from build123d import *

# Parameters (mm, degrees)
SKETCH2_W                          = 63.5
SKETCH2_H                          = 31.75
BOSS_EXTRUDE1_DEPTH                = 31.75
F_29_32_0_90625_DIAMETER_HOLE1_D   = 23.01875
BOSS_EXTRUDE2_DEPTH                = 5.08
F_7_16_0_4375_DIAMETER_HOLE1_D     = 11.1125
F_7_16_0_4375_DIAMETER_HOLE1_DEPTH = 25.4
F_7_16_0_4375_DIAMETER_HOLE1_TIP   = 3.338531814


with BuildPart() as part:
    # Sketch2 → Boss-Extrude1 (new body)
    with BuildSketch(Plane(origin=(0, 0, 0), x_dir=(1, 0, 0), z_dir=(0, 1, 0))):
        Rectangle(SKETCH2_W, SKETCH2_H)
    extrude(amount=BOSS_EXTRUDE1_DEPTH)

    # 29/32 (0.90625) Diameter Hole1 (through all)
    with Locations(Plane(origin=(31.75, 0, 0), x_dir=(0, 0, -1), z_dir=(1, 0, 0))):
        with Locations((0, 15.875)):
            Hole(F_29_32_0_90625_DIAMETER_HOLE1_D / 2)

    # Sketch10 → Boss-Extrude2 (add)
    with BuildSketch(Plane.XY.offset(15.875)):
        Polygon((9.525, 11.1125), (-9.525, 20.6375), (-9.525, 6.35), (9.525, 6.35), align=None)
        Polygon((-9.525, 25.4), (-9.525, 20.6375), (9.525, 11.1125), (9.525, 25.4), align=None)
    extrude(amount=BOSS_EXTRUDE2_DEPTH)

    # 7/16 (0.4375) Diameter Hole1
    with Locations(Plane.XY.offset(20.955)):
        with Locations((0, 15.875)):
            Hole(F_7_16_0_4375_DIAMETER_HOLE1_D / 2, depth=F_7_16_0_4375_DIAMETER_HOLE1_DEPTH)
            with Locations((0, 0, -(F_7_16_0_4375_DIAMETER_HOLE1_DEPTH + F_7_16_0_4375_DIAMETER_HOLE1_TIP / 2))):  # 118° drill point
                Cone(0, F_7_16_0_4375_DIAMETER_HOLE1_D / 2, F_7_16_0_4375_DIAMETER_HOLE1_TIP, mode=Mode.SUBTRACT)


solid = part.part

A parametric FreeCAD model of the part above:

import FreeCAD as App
import Part
import Sketcher
from FreeCAD import Vector
Q = App.Units.Quantity

doc = App.newDocument("Part")
body = doc.addObject("PartDesign::Body", "Body")

sketch1 = body.newObject("Sketcher::SketchObject", "Sketch")
sketch1.AttachmentSupport = (doc.getObject("XZ_Plane"), [""])
sketch1.MapMode = "FlatFace"
sketch1.addGeometry([
    Part.LineSegment(Vector(-32, -16, 0), Vector(-32, 16, 0)),
    Part.LineSegment(Vector(-32, 16, 0), Vector(32, 16, 0)),
    Part.LineSegment(Vector(32, 16, 0), Vector(32, -16, 0)),
    Part.LineSegment(Vector(32, -16, 0), Vector(-32, -16, 0)),
], False)
sketch1.addConstraint([
    Sketcher.Constraint("Coincident", 0, 2, 1, 1),
    Sketcher.Constraint("Coincident", 1, 2, 2, 1),
    Sketcher.Constraint("Coincident", 2, 2, 3, 1),
    Sketcher.Constraint("Coincident", 3, 2, 0, 1),
    Sketcher.Constraint("Vertical", 0),
    Sketcher.Constraint("Horizontal", 1),
    Sketcher.Constraint("Vertical", 2),
    Sketcher.Constraint("Horizontal", 3),
    Sketcher.Constraint("Symmetric", 0, 2, 2, 2, -1, 1),
    Sketcher.Constraint("DistanceX", 1, 1, 1, 2, Q("2.5 in")),
    Sketcher.Constraint("DistanceY", 0, 1, 0, 2, Q("1.25 in")),
])
pad1 = body.newObject("PartDesign::Pad", "Pad")
pad1.Profile = sketch1
pad1.Length = Q("1.25 in")
pad1.Reversed = True

sketch2 = body.newObject("Sketcher::SketchObject", "Sketch001")
sketch2.AttachmentSupport = (doc.getObject("YZ_Plane"), [""])
sketch2.MapMode = "FlatFace"
sketch2.AttachmentOffset = App.Placement(Vector(0, 0, 1.25 * 25.4), App.Rotation())
sketch2.addGeometry(Part.Circle(Vector(16, 0, 0), Vector(0, 0, 1), 12), False)
sketch2.addConstraint([
    Sketcher.Constraint("PointOnObject", 0, 3, -1),
    Sketcher.Constraint("Diameter", 0, Q("0.90625 in")),
    Sketcher.Constraint("DistanceX", -1, 1, 0, 3, Q("0.625 in")),
])
doc.recompute()
hole = body.newObject("PartDesign::Hole", "Hole")
hole.Profile = sketch2
hole.ThreadType = "None"
hole.Diameter = Q("0.90625 in")
hole.DepthType = "ThroughAll"

sketch3 = body.newObject("Sketcher::SketchObject", "Sketch002")
sketch3.AttachmentSupport = (doc.getObject("XY_Plane"), [""])
sketch3.MapMode = "FlatFace"
sketch3.AttachmentOffset = App.Placement(Vector(0, 0, 0.625 * 25.4), App.Rotation())
sketch3.addGeometry([
    Part.LineSegment(Vector(-10, 6, 0), Vector(10, 6, 0)),
    Part.LineSegment(Vector(10, 6, 0), Vector(10, 25, 0)),
    Part.LineSegment(Vector(10, 25, 0), Vector(-10, 25, 0)),
    Part.LineSegment(Vector(-10, 25, 0), Vector(-10, 6, 0)),
], False)
sketch3.addConstraint([
    Sketcher.Constraint("Coincident", 0, 2, 1, 1),
    Sketcher.Constraint("Coincident", 1, 2, 2, 1),
    Sketcher.Constraint("Coincident", 2, 2, 3, 1),
    Sketcher.Constraint("Coincident", 3, 2, 0, 1),
    Sketcher.Constraint("Horizontal", 0),
    Sketcher.Constraint("Vertical", 1),
    Sketcher.Constraint("Horizontal", 2),
    Sketcher.Constraint("Vertical", 3),
    Sketcher.Constraint("Equal", 2, 1),
    Sketcher.Constraint("DistanceY", -1, 1, 1, 2, Q("1 in")),
    Sketcher.Constraint("DistanceX", 0, 1, 0, 2, Q("0.75 in")),
    Sketcher.Constraint("DistanceX", -1, 1, 0, 2, Q("0.375 in")),
])
pad2 = body.newObject("PartDesign::Pad", "Pad001")
pad2.Profile = sketch3
pad2.Length = Q("0.2 in")

sketch4 = body.newObject("Sketcher::SketchObject", "Sketch003")
sketch4.AttachmentSupport = (doc.getObject("XY_Plane"), [""])
sketch4.MapMode = "FlatFace"
sketch4.AttachmentOffset = App.Placement(Vector(0, 0, 0.825 * 25.4), App.Rotation())
sketch4.addGeometry(Part.Circle(Vector(0, 16, 0), Vector(0, 0, 1), 6), False)
sketch4.addConstraint([
    Sketcher.Constraint("PointOnObject", 0, 3, -2),
    Sketcher.Constraint("Diameter", 0, Q("0.4375 in")),
    Sketcher.Constraint("DistanceY", -1, 1, 0, 3, Q("0.625 in")),
])
doc.recompute()
hole2 = body.newObject("PartDesign::Hole", "Hole001")
hole2.Profile = sketch4
hole2.ThreadType = "None"
hole2.Diameter = Q("0.4375 in")
hole2.DepthType = "Dimension"
hole2.Depth = Q("1 in")
hole2.DrillPoint = "Angled"
hole2.DrillPointAngle = 118

doc.recompute()
